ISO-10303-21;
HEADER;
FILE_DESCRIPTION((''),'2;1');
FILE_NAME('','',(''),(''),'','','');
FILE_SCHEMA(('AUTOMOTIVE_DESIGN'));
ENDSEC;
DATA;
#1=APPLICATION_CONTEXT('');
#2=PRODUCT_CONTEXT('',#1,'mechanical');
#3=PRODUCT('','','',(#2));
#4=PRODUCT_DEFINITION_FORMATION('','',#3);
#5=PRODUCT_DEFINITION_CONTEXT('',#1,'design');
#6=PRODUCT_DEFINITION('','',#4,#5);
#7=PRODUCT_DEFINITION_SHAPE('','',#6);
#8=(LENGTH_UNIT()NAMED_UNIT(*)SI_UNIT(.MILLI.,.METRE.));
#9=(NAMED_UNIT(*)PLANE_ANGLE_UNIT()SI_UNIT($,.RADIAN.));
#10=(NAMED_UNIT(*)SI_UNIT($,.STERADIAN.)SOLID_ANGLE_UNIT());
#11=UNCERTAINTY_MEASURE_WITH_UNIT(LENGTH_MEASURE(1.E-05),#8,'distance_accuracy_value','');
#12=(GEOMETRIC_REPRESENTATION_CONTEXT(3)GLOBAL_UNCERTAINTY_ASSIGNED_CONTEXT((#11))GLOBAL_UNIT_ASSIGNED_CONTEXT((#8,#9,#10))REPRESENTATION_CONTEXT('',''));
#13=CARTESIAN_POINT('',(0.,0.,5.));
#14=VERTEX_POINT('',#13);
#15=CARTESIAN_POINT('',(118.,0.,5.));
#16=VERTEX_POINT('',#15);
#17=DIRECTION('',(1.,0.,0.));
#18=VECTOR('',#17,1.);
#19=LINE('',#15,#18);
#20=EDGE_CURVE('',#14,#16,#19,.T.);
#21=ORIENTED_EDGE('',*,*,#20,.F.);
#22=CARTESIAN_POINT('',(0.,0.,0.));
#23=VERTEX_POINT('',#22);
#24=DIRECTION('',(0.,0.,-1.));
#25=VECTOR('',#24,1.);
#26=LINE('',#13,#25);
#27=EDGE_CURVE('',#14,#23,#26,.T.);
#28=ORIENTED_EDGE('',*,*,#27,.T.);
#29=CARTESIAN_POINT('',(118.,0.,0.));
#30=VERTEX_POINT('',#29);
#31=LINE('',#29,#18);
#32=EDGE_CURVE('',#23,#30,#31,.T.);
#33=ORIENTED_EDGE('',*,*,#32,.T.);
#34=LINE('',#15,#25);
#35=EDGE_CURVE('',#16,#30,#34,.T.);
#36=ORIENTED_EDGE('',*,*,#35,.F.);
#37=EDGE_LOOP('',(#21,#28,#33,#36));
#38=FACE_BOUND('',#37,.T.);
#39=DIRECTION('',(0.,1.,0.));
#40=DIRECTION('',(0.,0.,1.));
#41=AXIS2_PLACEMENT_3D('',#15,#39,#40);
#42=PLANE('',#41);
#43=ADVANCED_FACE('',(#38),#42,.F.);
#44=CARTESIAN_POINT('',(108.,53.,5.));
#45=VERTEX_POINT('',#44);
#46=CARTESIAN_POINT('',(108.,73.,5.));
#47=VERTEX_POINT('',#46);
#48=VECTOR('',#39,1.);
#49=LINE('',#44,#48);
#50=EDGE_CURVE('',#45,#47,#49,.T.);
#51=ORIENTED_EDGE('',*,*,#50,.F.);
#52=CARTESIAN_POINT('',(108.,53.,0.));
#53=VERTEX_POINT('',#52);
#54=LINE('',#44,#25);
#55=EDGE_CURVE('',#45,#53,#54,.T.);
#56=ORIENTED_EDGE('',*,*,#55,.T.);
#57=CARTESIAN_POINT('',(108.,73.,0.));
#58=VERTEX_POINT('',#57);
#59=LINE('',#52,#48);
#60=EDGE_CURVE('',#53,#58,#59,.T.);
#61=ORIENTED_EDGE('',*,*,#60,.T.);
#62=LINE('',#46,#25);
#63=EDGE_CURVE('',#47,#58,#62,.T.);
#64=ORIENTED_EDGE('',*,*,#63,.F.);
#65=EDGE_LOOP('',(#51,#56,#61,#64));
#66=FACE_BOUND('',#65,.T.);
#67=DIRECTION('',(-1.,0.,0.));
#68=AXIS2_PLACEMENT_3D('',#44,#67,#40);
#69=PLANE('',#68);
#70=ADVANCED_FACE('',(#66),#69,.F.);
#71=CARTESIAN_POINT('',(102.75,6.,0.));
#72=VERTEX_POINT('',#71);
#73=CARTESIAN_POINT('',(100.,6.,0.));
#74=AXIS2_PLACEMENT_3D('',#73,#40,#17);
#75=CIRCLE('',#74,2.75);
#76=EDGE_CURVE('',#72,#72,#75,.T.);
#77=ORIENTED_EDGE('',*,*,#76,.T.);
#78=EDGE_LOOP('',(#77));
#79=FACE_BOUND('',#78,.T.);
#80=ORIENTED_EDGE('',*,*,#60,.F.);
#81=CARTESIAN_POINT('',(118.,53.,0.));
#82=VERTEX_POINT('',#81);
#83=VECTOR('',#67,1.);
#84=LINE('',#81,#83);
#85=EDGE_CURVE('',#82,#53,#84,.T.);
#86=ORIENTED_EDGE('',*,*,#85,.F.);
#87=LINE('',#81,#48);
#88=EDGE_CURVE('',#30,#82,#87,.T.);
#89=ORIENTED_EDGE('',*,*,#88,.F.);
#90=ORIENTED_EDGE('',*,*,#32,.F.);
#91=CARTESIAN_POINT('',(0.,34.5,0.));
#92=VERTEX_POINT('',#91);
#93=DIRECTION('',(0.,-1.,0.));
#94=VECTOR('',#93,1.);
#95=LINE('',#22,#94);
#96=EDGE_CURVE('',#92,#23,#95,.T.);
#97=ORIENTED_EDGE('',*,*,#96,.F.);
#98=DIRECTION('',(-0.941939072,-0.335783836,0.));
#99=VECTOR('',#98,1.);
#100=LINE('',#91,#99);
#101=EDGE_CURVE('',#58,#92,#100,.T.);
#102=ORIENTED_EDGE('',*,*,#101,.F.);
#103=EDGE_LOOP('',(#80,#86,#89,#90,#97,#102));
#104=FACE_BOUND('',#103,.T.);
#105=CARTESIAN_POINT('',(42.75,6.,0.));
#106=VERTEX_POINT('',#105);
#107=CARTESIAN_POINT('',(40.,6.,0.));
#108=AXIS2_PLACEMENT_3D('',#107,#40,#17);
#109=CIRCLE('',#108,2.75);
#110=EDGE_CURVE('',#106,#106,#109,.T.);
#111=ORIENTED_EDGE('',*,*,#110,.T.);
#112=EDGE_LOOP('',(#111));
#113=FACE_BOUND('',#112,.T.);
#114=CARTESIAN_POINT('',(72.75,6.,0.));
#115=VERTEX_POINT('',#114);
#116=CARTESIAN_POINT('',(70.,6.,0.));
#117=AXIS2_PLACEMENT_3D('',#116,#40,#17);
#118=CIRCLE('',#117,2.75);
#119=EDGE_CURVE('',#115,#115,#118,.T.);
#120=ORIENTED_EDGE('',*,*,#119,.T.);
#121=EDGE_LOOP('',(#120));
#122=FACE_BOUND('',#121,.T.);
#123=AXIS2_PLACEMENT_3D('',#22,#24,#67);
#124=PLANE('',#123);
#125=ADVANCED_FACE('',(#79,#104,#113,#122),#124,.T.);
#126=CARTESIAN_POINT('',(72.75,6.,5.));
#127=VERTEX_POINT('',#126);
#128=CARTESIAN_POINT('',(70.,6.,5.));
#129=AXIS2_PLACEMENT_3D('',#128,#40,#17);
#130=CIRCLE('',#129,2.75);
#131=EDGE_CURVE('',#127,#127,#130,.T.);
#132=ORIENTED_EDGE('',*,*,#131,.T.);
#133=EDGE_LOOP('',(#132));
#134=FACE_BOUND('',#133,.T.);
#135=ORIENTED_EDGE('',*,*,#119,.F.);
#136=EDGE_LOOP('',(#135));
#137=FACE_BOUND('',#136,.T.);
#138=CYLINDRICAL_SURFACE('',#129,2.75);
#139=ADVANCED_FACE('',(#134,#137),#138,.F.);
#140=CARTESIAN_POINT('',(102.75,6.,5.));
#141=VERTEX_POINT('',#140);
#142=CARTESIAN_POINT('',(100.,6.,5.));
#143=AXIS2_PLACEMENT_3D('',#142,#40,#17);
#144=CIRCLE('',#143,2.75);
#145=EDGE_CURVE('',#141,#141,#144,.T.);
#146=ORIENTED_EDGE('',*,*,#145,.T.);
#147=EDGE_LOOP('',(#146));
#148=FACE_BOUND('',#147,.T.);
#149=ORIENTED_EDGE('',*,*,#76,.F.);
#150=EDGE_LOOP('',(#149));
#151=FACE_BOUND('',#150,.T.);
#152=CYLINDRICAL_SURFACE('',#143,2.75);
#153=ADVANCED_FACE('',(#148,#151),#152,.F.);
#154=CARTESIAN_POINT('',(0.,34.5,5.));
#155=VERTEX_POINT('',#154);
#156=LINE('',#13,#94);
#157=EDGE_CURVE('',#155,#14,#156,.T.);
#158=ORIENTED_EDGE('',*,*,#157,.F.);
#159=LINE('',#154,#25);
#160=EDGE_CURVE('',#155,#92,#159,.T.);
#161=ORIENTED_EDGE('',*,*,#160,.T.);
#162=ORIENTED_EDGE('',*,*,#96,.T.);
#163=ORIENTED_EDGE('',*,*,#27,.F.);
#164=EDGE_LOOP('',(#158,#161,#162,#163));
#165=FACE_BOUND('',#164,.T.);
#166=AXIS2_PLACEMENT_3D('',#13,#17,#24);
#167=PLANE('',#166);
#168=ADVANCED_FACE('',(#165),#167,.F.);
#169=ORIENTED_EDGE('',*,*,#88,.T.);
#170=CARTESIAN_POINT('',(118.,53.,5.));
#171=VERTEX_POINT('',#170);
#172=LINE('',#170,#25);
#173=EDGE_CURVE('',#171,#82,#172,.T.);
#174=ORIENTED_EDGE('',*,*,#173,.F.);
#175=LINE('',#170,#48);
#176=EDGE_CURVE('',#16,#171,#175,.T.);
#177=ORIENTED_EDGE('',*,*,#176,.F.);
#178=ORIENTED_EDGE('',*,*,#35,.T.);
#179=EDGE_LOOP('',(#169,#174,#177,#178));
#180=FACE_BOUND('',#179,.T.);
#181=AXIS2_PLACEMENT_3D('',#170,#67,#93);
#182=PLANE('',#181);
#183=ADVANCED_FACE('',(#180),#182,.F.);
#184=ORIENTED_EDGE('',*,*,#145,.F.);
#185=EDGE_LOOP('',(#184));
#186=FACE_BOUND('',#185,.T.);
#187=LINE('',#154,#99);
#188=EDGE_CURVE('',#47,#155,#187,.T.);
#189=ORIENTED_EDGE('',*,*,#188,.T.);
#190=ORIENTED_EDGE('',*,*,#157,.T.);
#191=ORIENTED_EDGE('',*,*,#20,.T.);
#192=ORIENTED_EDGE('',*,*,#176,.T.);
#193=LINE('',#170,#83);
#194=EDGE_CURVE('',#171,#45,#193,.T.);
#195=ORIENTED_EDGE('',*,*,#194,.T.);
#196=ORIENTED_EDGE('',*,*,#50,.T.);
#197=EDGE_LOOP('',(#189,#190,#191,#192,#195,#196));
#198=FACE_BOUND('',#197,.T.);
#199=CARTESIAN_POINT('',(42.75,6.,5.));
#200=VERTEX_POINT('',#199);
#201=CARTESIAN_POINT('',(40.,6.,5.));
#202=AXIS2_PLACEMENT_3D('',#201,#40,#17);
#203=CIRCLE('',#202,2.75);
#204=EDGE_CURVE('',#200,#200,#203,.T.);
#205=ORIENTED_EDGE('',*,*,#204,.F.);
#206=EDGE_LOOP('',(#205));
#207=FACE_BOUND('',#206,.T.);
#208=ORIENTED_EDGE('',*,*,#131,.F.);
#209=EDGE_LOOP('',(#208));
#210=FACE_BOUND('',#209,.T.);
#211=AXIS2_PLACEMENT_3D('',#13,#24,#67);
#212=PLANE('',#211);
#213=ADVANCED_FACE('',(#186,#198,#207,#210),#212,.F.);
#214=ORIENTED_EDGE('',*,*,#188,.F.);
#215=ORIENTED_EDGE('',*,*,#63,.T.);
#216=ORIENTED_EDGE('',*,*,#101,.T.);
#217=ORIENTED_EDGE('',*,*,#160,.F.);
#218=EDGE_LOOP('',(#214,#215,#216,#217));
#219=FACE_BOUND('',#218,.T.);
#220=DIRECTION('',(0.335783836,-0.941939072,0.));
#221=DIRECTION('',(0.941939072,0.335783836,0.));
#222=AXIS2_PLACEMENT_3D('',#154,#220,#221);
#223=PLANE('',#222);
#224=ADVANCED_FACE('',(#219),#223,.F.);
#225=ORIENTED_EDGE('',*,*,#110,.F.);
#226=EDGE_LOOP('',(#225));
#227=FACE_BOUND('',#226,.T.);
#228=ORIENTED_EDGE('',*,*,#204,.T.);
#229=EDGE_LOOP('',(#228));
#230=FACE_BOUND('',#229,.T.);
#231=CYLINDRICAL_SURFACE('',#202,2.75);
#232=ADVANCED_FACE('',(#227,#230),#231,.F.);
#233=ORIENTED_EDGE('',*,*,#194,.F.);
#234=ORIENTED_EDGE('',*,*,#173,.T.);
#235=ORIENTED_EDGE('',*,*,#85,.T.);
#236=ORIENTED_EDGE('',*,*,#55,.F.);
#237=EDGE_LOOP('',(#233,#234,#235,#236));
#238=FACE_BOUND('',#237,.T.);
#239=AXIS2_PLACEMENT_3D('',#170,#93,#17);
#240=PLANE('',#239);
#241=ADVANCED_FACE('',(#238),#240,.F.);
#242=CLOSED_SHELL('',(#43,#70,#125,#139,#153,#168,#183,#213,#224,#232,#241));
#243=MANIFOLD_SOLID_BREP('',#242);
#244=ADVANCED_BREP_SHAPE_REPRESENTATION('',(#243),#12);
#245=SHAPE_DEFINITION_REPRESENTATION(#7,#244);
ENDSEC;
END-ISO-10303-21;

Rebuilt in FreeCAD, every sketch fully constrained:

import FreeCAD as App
import Part
import Sketcher


def add_polygon(sketch, points):
    """Adds a closed chain of lines whose ends are joined by coincident constraints."""
    first, n = sketch.GeometryCount, len(points)
    for a, b in zip(points, points[1:] + points[:1]):
        sketch.addGeometry(Part.LineSegment(App.Vector(*a, 0), App.Vector(*b, 0)), False)
    for i in range(n):
        sketch.addConstraint(Sketcher.Constraint("Coincident", first + i, 2, first + (i + 1) % n, 1))

doc = App.newDocument("Part")
body = doc.addObject("PartDesign::Body", "Body")

sketch1 = body.newObject("Sketcher::SketchObject", "Sketch")
sketch1.AttachmentSupport = (doc.getObject("XY_Plane"), [""])
sketch1.MapMode = "FlatFace"
add_polygon(sketch1, [(0, 34.5), (0, 0), (118, 0), (118, 53), (108, 53), (108, 73)])
sketch1.addConstraint(Sketcher.Constraint("Vertical", 0))
sketch1.addConstraint(Sketcher.Constraint("Horizontal", 1))
sketch1.addConstraint(Sketcher.Constraint("Vertical", 2))
sketch1.addConstraint(Sketcher.Constraint("Horizontal", 3))
sketch1.addConstraint(Sketcher.Constraint("Vertical", 4))
sketch1.addConstraint(Sketcher.Constraint("Coincident", 0, 2, -1, 1))
sketch1.addConstraint(Sketcher.Constraint("DistanceX", 1, 1, 1, 2, 118.0))
sketch1.addConstraint(Sketcher.Constraint("DistanceX", 3, 2, 3, 1, 10.0))
sketch1.addConstraint(Sketcher.Constraint("DistanceY", 2, 1, 2, 2, 53.0))
sketch1.addConstraint(Sketcher.Constraint("DistanceY", 4, 1, 4, 2, 20.0))
sketch1.addConstraint(Sketcher.Constraint("DistanceY", 0, 2, 0, 1, 34.5))
pad1 = body.newObject("PartDesign::Pad", "Pad")
pad1.Profile = sketch1
pad1.Length = 5

sketch2 = body.newObject("Sketcher::SketchObject", "Sketch001")
sketch2.AttachmentSupport = (doc.getObject("XY_Plane"), [""])
sketch2.MapMode = "FlatFace"
sketch2.AttachmentOffset = App.Placement(App.Vector(0, 0, 5), App.Rotation())
sketch2.addGeometry(Part.Circle(App.Vector(100, 6, 0), App.Vector(0, 0, 1), 2.75), False)
sketch2.addGeometry(Part.Circle(App.Vector(70, 6, 0), App.Vector(0, 0, 1), 2.75), False)
sketch2.addGeometry(Part.Circle(App.Vector(40, 6, 0), App.Vector(0, 0, 1), 2.75), False)
sketch2.addConstraint(Sketcher.Constraint("Equal", 0, 1))
sketch2.addConstraint(Sketcher.Constraint("Equal", 1, 2))
sketch2.addConstraint(Sketcher.Constraint("Horizontal", 0, 3, 1, 3))
sketch2.addConstraint(Sketcher.Constraint("Horizontal", 1, 3, 2, 3))
sketch2.addConstraint(Sketcher.Constraint("Diameter", 0, 5.5))
sketch2.addConstraint(Sketcher.Constraint("DistanceX", -1, 1, 0, 3, 100.0))
sketch2.addConstraint(Sketcher.Constraint("DistanceY", -1, 1, 0, 3, 6.0))
sketch2.addConstraint(Sketcher.Constraint("DistanceX", -1, 1, 1, 3, 70.0))
sketch2.addConstraint(Sketcher.Constraint("DistanceX", -1, 1, 2, 3, 40.0))
doc.recompute()
hole = body.newObject("PartDesign::Hole", "Hole")
hole.Profile = sketch2
hole.ThreadType = "None"
hole.Diameter = 5.5
hole.DepthType = "ThroughAll"

doc.recompute()
